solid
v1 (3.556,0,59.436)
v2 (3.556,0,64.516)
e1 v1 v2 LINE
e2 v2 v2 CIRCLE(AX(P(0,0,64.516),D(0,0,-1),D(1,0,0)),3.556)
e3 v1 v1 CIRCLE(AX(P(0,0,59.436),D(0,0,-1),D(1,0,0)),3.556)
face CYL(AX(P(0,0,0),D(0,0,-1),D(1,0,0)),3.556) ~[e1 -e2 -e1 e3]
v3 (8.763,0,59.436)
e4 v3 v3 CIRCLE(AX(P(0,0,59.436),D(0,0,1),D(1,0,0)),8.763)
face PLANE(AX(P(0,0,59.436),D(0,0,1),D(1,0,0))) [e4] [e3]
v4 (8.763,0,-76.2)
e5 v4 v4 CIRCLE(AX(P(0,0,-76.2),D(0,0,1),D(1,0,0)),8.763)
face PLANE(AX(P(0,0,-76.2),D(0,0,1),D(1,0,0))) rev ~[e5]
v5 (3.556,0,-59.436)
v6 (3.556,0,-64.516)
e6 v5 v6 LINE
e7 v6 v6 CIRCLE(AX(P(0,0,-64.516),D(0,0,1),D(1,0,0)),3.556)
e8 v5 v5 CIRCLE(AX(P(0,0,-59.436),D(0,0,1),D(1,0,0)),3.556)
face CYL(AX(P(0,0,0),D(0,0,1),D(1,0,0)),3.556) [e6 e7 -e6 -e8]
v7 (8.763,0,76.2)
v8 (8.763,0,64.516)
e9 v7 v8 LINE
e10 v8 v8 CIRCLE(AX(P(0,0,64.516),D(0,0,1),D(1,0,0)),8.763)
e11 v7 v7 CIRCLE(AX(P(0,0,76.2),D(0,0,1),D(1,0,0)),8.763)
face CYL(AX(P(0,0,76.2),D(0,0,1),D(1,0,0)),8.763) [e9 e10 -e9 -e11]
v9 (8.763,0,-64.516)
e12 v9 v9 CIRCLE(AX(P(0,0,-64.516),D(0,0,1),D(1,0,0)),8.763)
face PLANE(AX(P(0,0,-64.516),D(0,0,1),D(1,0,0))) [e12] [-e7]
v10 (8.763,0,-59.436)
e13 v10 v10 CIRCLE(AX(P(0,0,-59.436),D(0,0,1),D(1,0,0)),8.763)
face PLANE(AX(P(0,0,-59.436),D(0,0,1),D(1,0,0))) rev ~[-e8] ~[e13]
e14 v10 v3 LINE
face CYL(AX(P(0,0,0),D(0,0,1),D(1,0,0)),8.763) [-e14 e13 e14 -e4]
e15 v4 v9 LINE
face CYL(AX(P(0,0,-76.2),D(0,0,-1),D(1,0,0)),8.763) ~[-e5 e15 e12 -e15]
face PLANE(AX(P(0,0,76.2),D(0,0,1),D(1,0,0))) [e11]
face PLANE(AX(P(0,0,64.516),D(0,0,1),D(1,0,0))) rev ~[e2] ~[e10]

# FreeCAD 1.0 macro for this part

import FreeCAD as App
import Part
import Sketcher

V = App.Vector
Q = App.Units.Quantity

doc = App.newDocument("Part")
body = doc.addObject("PartDesign::Body", "Body")

# Sketch on XY plane
sketch1 = doc.addObject("Sketcher::SketchObject", "Sketch")
body.addObject(sketch1)
sketch1.AttachmentSupport = (doc.XY_Plane, [""])
sketch1.MapMode = "FlatFace"
sketch1.addGeometry(Part.Circle(V(0, 0, 0), V(0, 0, 1), 9), False)
sketch1.addConstraint([
    Sketcher.Constraint("Coincident", 0, 3, -1, 1),
    Sketcher.Constraint("Diameter", 0, Q("0.69 in")),
])
pad1 = doc.addObject("PartDesign::Pad", "Pad")
body.addObject(pad1)
pad1.Profile = sketch1
pad1.Type = "TwoLengths"
pad1.Length = Q("2.34 in")
pad1.Length2 = Q("2.34 in")

# Sketch on XY plane
sketch2 = doc.addObject("Sketcher::SketchObject", "Sketch001")
body.addObject(sketch2)
sketch2.AttachmentSupport = (doc.XY_Plane, [""])
sketch2.MapMode = "FlatFace"
sketch2.addGeometry(Part.Circle(V(0, 0, 0), V(0, 0, 1), 3.6), False)
sketch2.addConstraint([
    Sketcher.Constraint("Coincident", 0, 3, -1, 1),
    Sketcher.Constraint("Diameter", 0, Q("0.28 in")),
])
pad2 = doc.addObject("PartDesign::Pad", "Pad001")
body.addObject(pad2)
pad2.Profile = sketch2
pad2.Type = "TwoLengths"
pad2.Length = Q("3 in")
pad2.Length2 = Q("3 in")

# Sketch on XY plane
sketch3 = doc.addObject("Sketcher::SketchObject", "Sketch002")
body.addObject(sketch3)
sketch3.AttachmentSupport = (doc.XY_Plane, [""])
sketch3.MapMode = "FlatFace"
sketch3.AttachmentOffset = App.Placement(V(0, 0, 3 * 25.4), App.Rotation())
sketch3.addGeometry(Part.Circle(V(0, 0, 0), V(0, 0, 1), 9), False)
sketch3.addConstraint([
    Sketcher.Constraint("Coincident", 0, 3, -1, 1),
    Sketcher.Constraint("Diameter", 0, Q("0.69 in")),
])
pad3 = doc.addObject("PartDesign::Pad", "Pad002")
body.addObject(pad3)
pad3.Profile = sketch3
pad3.Length = Q("0.46 in")
pad3.Reversed = True

# Sketch on XY plane
sketch4 = doc.addObject("Sketcher::SketchObject", "Sketch003")
body.addObject(sketch4)
sketch4.AttachmentSupport = (doc.XY_Plane, [""])
sketch4.MapMode = "FlatFace"
sketch4.AttachmentOffset = App.Placement(V(0, 0, -3 * 25.4), App.Rotation())
sketch4.addGeometry(Part.Circle(V(0, 0, 0), V(0, 0, 1), 9), False)
sketch4.addConstraint([
    Sketcher.Constraint("Coincident", 0, 3, -1, 1),
    Sketcher.Constraint("Diameter", 0, Q("0.69 in")),
])
pad4 = doc.addObject("PartDesign::Pad", "Pad003")
body.addObject(pad4)
pad4.Profile = sketch4
pad4.Length = Q("0.46 in")

doc.recompute()
